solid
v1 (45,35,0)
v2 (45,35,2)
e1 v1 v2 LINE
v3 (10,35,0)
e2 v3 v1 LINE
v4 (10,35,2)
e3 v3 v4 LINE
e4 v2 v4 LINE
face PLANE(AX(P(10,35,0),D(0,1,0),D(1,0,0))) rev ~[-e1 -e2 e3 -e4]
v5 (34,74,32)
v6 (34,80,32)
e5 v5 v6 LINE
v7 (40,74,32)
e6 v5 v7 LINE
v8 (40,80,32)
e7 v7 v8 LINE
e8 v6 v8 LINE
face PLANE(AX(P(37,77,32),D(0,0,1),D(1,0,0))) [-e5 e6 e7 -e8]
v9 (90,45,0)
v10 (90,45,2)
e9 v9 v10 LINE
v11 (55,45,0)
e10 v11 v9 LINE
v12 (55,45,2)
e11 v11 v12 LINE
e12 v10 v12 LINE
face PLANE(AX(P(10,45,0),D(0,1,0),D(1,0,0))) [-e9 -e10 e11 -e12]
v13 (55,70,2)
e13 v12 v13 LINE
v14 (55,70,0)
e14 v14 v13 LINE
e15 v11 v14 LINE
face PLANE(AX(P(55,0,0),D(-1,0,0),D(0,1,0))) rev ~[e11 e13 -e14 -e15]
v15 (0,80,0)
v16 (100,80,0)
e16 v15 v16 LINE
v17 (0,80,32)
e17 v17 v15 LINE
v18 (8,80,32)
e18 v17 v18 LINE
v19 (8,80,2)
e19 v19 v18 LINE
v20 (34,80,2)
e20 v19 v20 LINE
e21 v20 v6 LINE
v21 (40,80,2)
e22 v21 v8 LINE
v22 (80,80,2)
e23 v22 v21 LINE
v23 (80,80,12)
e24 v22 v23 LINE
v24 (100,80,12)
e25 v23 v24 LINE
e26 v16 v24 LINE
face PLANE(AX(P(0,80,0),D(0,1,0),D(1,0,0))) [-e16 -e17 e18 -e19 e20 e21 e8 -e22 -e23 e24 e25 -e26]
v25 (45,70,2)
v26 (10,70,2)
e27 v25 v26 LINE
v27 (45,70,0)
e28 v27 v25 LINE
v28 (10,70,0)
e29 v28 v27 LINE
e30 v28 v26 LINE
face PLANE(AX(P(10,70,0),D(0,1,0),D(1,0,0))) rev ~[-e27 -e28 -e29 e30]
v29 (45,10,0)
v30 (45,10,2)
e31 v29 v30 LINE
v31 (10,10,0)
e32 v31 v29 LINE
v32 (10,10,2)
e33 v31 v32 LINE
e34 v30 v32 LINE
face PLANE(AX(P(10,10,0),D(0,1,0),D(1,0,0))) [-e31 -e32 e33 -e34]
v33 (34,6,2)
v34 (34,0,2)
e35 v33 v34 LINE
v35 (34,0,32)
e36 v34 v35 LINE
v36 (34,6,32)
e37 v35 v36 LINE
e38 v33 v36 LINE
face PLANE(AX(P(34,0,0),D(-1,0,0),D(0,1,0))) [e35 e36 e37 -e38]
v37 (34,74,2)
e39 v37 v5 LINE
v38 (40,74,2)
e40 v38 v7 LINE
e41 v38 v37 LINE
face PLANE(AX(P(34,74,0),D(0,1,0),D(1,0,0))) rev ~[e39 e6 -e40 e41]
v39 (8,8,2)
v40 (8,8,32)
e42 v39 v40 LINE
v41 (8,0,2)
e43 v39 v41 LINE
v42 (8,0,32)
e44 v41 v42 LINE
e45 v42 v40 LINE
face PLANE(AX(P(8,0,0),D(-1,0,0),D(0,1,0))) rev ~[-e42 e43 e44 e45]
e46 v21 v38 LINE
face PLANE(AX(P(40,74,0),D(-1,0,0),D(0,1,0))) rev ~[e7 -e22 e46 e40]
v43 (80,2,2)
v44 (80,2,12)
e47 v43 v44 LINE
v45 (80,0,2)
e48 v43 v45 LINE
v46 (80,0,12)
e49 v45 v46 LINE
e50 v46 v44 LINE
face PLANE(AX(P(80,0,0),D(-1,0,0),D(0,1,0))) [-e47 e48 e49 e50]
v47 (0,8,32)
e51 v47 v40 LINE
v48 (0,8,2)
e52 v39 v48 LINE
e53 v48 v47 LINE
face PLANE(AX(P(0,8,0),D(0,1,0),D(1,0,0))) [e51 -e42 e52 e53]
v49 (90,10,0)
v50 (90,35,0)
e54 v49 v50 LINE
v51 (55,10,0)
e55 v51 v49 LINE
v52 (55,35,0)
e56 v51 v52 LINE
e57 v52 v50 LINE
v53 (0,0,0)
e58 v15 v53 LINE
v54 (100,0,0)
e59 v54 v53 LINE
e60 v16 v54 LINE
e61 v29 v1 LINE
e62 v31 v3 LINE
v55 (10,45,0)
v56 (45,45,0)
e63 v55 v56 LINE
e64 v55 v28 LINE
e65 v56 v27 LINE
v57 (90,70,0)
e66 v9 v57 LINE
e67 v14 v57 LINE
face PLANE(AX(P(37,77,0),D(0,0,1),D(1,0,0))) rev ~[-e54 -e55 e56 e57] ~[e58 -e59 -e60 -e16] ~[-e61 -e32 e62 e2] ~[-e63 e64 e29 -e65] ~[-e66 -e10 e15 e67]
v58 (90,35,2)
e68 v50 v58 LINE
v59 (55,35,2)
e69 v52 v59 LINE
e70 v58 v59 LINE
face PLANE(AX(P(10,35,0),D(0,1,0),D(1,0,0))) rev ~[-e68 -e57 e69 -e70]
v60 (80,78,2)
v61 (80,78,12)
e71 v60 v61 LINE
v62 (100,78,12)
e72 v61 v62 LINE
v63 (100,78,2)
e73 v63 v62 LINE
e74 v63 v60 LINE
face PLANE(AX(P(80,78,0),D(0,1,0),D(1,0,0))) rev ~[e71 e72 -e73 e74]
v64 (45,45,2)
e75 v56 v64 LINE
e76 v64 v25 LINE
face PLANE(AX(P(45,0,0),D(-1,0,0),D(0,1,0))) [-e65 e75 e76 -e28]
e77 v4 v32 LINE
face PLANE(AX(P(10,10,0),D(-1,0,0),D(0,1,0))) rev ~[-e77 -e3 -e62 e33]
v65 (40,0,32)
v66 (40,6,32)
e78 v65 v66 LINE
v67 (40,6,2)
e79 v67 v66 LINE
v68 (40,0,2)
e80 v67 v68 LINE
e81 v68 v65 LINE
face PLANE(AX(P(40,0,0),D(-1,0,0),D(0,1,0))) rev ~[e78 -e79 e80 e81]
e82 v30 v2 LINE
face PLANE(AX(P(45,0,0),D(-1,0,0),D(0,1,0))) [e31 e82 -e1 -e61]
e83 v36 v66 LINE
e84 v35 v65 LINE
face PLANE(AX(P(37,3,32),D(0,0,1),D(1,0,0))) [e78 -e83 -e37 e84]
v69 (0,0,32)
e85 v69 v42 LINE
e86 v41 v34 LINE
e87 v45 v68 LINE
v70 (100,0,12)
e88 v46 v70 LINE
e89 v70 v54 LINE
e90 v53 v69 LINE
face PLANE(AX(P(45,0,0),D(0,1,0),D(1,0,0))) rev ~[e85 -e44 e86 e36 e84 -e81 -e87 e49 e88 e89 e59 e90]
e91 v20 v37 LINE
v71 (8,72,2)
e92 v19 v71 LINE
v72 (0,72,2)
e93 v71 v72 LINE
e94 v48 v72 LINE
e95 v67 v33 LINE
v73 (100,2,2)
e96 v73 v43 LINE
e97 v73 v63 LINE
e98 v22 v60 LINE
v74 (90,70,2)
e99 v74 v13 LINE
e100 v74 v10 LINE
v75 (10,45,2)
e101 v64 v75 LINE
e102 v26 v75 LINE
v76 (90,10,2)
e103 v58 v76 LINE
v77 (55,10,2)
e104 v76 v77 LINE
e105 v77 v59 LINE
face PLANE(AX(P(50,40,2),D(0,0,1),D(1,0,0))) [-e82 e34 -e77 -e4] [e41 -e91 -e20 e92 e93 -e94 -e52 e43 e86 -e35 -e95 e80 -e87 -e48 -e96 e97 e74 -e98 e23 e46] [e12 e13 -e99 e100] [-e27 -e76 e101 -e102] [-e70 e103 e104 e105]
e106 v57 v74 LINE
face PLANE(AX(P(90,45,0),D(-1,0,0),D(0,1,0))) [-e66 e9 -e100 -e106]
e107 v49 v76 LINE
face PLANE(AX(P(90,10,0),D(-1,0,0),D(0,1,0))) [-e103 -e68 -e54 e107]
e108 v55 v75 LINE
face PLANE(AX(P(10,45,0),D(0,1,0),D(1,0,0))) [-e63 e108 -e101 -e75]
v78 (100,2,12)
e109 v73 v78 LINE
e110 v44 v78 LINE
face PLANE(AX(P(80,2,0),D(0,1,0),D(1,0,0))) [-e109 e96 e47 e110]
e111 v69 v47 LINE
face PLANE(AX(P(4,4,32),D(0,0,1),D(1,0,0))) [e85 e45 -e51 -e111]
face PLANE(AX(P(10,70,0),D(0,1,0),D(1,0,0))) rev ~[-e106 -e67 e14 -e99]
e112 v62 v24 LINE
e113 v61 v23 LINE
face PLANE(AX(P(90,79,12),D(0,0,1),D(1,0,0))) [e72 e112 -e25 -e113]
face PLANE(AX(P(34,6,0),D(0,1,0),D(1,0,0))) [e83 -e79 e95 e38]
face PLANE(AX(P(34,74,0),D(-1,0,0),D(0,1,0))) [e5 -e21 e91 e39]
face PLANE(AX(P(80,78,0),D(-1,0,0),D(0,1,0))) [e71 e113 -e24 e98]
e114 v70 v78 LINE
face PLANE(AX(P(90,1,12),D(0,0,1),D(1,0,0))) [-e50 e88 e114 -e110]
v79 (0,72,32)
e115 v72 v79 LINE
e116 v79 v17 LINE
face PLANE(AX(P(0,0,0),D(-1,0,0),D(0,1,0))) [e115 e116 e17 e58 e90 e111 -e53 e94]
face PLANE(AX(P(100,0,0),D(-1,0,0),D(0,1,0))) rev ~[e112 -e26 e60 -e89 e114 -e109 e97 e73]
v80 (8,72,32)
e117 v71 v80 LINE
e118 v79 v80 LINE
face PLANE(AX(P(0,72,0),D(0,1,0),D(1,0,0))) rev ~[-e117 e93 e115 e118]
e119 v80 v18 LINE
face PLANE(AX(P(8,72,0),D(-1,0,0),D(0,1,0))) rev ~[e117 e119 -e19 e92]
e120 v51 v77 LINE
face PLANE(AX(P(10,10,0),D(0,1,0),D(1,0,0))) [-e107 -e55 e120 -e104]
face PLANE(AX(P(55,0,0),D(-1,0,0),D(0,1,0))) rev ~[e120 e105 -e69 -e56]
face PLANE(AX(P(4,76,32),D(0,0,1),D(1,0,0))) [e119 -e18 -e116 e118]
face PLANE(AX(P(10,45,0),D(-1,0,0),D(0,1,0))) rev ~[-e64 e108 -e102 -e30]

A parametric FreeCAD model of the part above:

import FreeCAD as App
import Part
import Sketcher

doc = App.newDocument("Part")
body = doc.addObject("PartDesign::Body", "Body")

sketch1 = doc.addObject("Sketcher::SketchObject", "Sketch")
body.addObject(sketch1)
sketch1.AttachmentSupport = (doc.XY_Plane, [""])
sketch1.MapMode = "FlatFace"
sketch1.addGeometry(Part.LineSegment(App.Vector(45, 80, 0), App.Vector(45, 0, 0)), False)
sketch1.addGeometry(Part.LineSegment(App.Vector(45, 0, 0), App.Vector(55, 0, 0)), False)
sketch1.addGeometry(Part.LineSegment(App.Vector(55, 0, 0), App.Vector(55, 80, 0)), False)
sketch1.addGeometry(Part.LineSegment(App.Vector(55, 80, 0), App.Vector(45, 80, 0)), False)
sketch1.addConstraint(Sketcher.Constraint("Coincident", 0, 2, 1, 1))
sketch1.addConstraint(Sketcher.Constraint("Coincident", 1, 2, 2, 1))
sketch1.addConstraint(Sketcher.Constraint("Coincident", 2, 2, 3, 1))
sketch1.addConstraint(Sketcher.Constraint("Coincident", 3, 2, 0, 1))
sketch1.addConstraint(Sketcher.Constraint("Vertical", 0))
sketch1.addConstraint(Sketcher.Constraint("Horizontal", 1))
sketch1.addConstraint(Sketcher.Constraint("Vertical", 2))
sketch1.addConstraint(Sketcher.Constraint("Horizontal", 3))
sketch1.addConstraint(Sketcher.Constraint("PointOnObject", 0, 2, -1))
sketch1.addConstraint(Sketcher.Constraint("DistanceX", 1, 1, 1, 2, 10.0))
sketch1.addConstraint(Sketcher.Constraint("DistanceY", 0, 2, 0, 1, 80.0))
sketch1.addConstraint(Sketcher.Constraint("DistanceX", -1, 1, 0, 2, 45.0))
pad1 = doc.addObject("PartDesign::Pad", "Pad")
body.addObject(pad1)
pad1.Profile = sketch1
pad1.Length = 2
body2 = doc.addObject("PartDesign::Body", "Body001")

sketch2 = doc.addObject("Sketcher::SketchObject", "Sketch001")
body2.addObject(sketch2)
sketch2.AttachmentSupport = (doc.getObject("XY_Plane001"), [""])
sketch2.MapMode = "FlatFace"
sketch2.addGeometry(Part.LineSegment(App.Vector(80, 80, 0), App.Vector(80, 78, 0)), False)
sketch2.addGeometry(Part.LineSegment(App.Vector(80, 78, 0), App.Vector(100, 78, 0)), False)
sketch2.addGeometry(Part.LineSegment(App.Vector(100, 78, 0), App.Vector(100, 80, 0)), False)
sketch2.addGeometry(Part.LineSegment(App.Vector(100, 80, 0), App.Vector(80, 80, 0)), False)
sketch2.addConstraint(Sketcher.Constraint("Coincident", 0, 2, 1, 1))
sketch2.addConstraint(Sketcher.Constraint("Coincident", 1, 2, 2, 1))
sketch2.addConstraint(Sketcher.Constraint("Coincident", 2, 2, 3, 1))
sketch2.addConstraint(Sketcher.Constraint("Coincident", 3, 2, 0, 1))
sketch2.addConstraint(Sketcher.Constraint("Vertical", 0))
sketch2.addConstraint(Sketcher.Constraint("Horizontal", 1))
sketch2.addConstraint(Sketcher.Constraint("Vertical", 2))
sketch2.addConstraint(Sketcher.Constraint("Horizontal", 3))
sketch2.addConstraint(Sketcher.Constraint("DistanceX", 1, 1, 1, 2, 20.0))
sketch2.addConstraint(Sketcher.Constraint("DistanceY", 0, 2, 0, 1, 2.0))
sketch2.addConstraint(Sketcher.Constraint("DistanceX", -1, 1, 0, 2, 80.0))
sketch2.addConstraint(Sketcher.Constraint("DistanceY", -1, 1, 0, 2, 78.0))
pad2 = doc.addObject("PartDesign::Pad", "Pad001")
body2.addObject(pad2)
pad2.Profile = sketch2
pad2.Length = 12
body3 = doc.addObject("PartDesign::Body", "Body002")

sketch3 = doc.addObject("Sketcher::SketchObject", "Sketch002")
body3.addObject(sketch3)
sketch3.AttachmentSupport = (doc.getObject("XY_Plane002"), [""])
sketch3.MapMode = "FlatFace"
sketch3.addGeometry(Part.LineSegment(App.Vector(80, 2, 0), App.Vector(80, 0, 0)), False)
sketch3.addGeometry(Part.LineSegment(App.Vector(80, 0, 0), App.Vector(100, 0, 0)), False)
sketch3.addGeometry(Part.LineSegment(App.Vector(100, 0, 0), App.Vector(100, 2, 0)), False)
sketch3.addGeometry(Part.LineSegment(App.Vector(100, 2, 0), App.Vector(80, 2, 0)), False)
sketch3.addConstraint(Sketcher.Constraint("Coincident", 0, 2, 1, 1))
sketch3.addConstraint(Sketcher.Constraint("Coincident", 1, 2, 2, 1))
sketch3.addConstraint(Sketcher.Constraint("Coincident", 2, 2, 3, 1))
sketch3.addConstraint(Sketcher.Constraint("Coincident", 3, 2, 0, 1))
sketch3.addConstraint(Sketcher.Constraint("Vertical", 0))
sketch3.addConstraint(Sketcher.Constraint("Horizontal", 1))
sketch3.addConstraint(Sketcher.Constraint("Vertical", 2))
sketch3.addConstraint(Sketcher.Constraint("Horizontal", 3))
sketch3.addConstraint(Sketcher.Constraint("PointOnObject", 0, 2, -1))
sketch3.addConstraint(Sketcher.Constraint("DistanceX", 1, 1, 1, 2, 20.0))
sketch3.addConstraint(Sketcher.Constraint("DistanceY", 0, 2, 0, 1, 2.0))
sketch3.addConstraint(Sketcher.Constraint("DistanceX", -1, 1, 0, 2, 80.0))
pad3 = doc.addObject("PartDesign::Pad", "Pad002")
body3.addObject(pad3)
pad3.Profile = sketch3
pad3.Length = 12
body4 = doc.addObject("PartDesign::Body", "Body003")

sketch4 = doc.addObject("Sketcher::SketchObject", "Sketch003")
body4.addObject(sketch4)
sketch4.AttachmentSupport = (doc.getObject("XY_Plane003"), [""])
sketch4.MapMode = "FlatFace"
sketch4.addGeometry(Part.LineSegment(App.Vector(10, 70, 0), App.Vector(10, 45, 0)), False)
sketch4.addGeometry(Part.LineSegment(App.Vector(10, 45, 0), App.Vector(90, 45, 0)), False)
sketch4.addGeometry(Part.LineSegment(App.Vector(90, 45, 0), App.Vector(90, 70, 0)), False)
sketch4.addGeometry(Part.LineSegment(App.Vector(90, 70, 0), App.Vector(10, 70, 0)), False)
sketch4.addConstraint(Sketcher.Constraint("Coincident", 0, 2, 1, 1))
sketch4.addConstraint(Sketcher.Constraint("Coincident", 1, 2, 2, 1))
sketch4.addConstraint(Sketcher.Constraint("Coincident", 2, 2, 3, 1))
sketch4.addConstraint(Sketcher.Constraint("Coincident", 3, 2, 0, 1))
sketch4.addConstraint(Sketcher.Constraint("Vertical", 0))
sketch4.addConstraint(Sketcher.Constraint("Horizontal", 1))
sketch4.addConstraint(Sketcher.Constraint("Vertical", 2))
sketch4.addConstraint(Sketcher.Constraint("Horizontal", 3))
sketch4.addConstraint(Sketcher.Constraint("DistanceX", 1, 1, 1, 2, 80.0))
sketch4.addConstraint(Sketcher.Constraint("DistanceY", 0, 2, 0, 1, 25.0))
sketch4.addConstraint(Sketcher.Constraint("DistanceX", -1, 1, 0, 2, 10.0))
sketch4.addConstraint(Sketcher.Constraint("DistanceY", -1, 1, 0, 2, 45.0))
pad4 = doc.addObject("PartDesign::Pad", "Pad003")
body4.addObject(pad4)
pad4.Profile = sketch4
pad4.Length = 10
body5 = doc.addObject("PartDesign::Body", "Body004")

sketch5 = doc.addObject("Sketcher::SketchObject", "Sketch004")
body5.addObject(sketch5)
sketch5.AttachmentSupport = (doc.getObject("XY_Plane004"), [""])
sketch5.MapMode = "FlatFace"
sketch5.addGeometry(Part.LineSegment(App.Vector(10, 35, 0), App.Vector(10, 10, 0)), False)
sketch5.addGeometry(Part.LineSegment(App.Vector(10, 10, 0), App.Vector(90, 10, 0)), False)
sketch5.addGeometry(Part.LineSegment(App.Vector(90, 10, 0), App.Vector(90, 35, 0)), False)
sketch5.addGeometry(Part.LineSegment(App.Vector(90, 35, 0), App.Vector(10, 35, 0)), False)
sketch5.addConstraint(Sketcher.Constraint("Coincident", 0, 2, 1, 1))
sketch5.addConstraint(Sketcher.Constraint("Coincident", 1, 2, 2, 1))
sketch5.addConstraint(Sketcher.Constraint("Coincident", 2, 2, 3, 1))
sketch5.addConstraint(Sketcher.Constraint("Coincident", 3, 2, 0, 1))
sketch5.addConstraint(Sketcher.Constraint("Vertical", 0))
sketch5.addConstraint(Sketcher.Constraint("Horizontal", 1))
sketch5.addConstraint(Sketcher.Constraint("Vertical", 2))
sketch5.addConstraint(Sketcher.Constraint("Horizontal", 3))
sketch5.addConstraint(Sketcher.Constraint("DistanceX", 1, 1, 1, 2, 80.0))
sketch5.addConstraint(Sketcher.Constraint("DistanceY", 0, 2, 0, 1, 25.0))
sketch5.addConstraint(Sketcher.Constraint("DistanceX", -1, 1, 0, 2, 10.0))
sketch5.addConstraint(Sketcher.Constraint("DistanceY", -1, 1, 0, 2, 10.0))
pad5 = doc.addObject("PartDesign::Pad", "Pad004")
body5.addObject(pad5)
pad5.Profile = sketch5
pad5.Length = 10
body6 = doc.addObject("PartDesign::Body", "Body005")

sketch6 = doc.addObject("Sketcher::SketchObject", "Sketch005")
body6.addObject(sketch6)
sketch6.AttachmentSupport = (doc.getObject("XY_Plane005"), [""])
sketch6.MapMode = "FlatFace"
sketch6.addGeometry(Part.LineSegment(App.Vector(34, 80, 0), App.Vector(34, 74, 0)), False)
sketch6.addGeometry(Part.LineSegment(App.Vector(34, 74, 0), App.Vector(40, 74, 0)), False)
sketch6.addGeometry(Part.LineSegment(App.Vector(40, 74, 0), App.Vector(40, 80, 0)), False)
sketch6.addGeometry(Part.LineSegment(App.Vector(40, 80, 0), App.Vector(34, 80, 0)), False)
sketch6.addConstraint(Sketcher.Constraint("Coincident", 0, 2, 1, 1))
sketch6.addConstraint(Sketcher.Constraint("Coincident", 1, 2, 2, 1))
sketch6.addConstraint(Sketcher.Constraint("Coincident", 2, 2, 3, 1))
sketch6.addConstraint(Sketcher.Constraint("Coincident", 3, 2, 0, 1))
sketch6.addConstraint(Sketcher.Constraint("Vertical", 0))
sketch6.addConstraint(Sketcher.Constraint("Horizontal", 1))
sketch6.addConstraint(Sketcher.Constraint("Vertical", 2))
sketch6.addConstraint(Sketcher.Constraint("Horizontal", 3))
sketch6.addConstraint(Sketcher.Constraint("Equal", 3, 0))
sketch6.addConstraint(Sketcher.Constraint("DistanceX", 1, 1, 1, 2, 6.0))
sketch6.addConstraint(Sketcher.Constraint("DistanceX", -1, 1, 0, 2, 34.0))
sketch6.addConstraint(Sketcher.Constraint("DistanceY", -1, 1, 0, 2, 74.0))
pad6 = doc.addObject("PartDesign::Pad", "Pad005")
body6.addObject(pad6)
pad6.Profile = sketch6
pad6.Length = 32
body7 = doc.addObject("PartDesign::Body", "Body006")

sketch7 = doc.addObject("Sketcher::SketchObject", "Sketch006")
body7.addObject(sketch7)
sketch7.AttachmentSupport = (doc.getObject("XY_Plane006"), [""])
sketch7.MapMode = "FlatFace"
sketch7.addGeometry(Part.LineSegment(App.Vector(34, 6, 0), App.Vector(34, 0, 0)), False)
sketch7.addGeometry(Part.LineSegment(App.Vector(34, 0, 0), App.Vector(40, 0, 0)), False)
sketch7.addGeometry(Part.LineSegment(App.Vector(40, 0, 0), App.Vector(40, 6, 0)), False)
sketch7.addGeometry(Part.LineSegment(App.Vector(40, 6, 0), App.Vector(34, 6, 0)), False)
sketch7.addConstraint(Sketcher.Constraint("Coincident", 0, 2, 1, 1))
sketch7.addConstraint(Sketcher.Constraint("Coincident", 1, 2, 2, 1))
sketch7.addConstraint(Sketcher.Constraint("Coincident", 2, 2, 3, 1))
sketch7.addConstraint(Sketcher.Constraint("Coincident", 3, 2, 0, 1))
sketch7.addConstraint(Sketcher.Constraint("Vertical", 0))
sketch7.addConstraint(Sketcher.Constraint("Horizontal", 1))
sketch7.addConstraint(Sketcher.Constraint("Vertical", 2))
sketch7.addConstraint(Sketcher.Constraint("Horizontal", 3))
sketch7.addConstraint(Sketcher.Constraint("PointOnObject", 0, 2, -1))
sketch7.addConstraint(Sketcher.Constraint("Equal", 3, 0))
sketch7.addConstraint(Sketcher.Constraint("DistanceX", 1, 1, 1, 2, 6.0))
sketch7.addConstraint(Sketcher.Constraint("DistanceX", -1, 1, 0, 2, 34.0))
pad7 = doc.addObject("PartDesign::Pad", "Pad006")
body7.addObject(pad7)
pad7.Profile = sketch7
pad7.Length = 32
body8 = doc.addObject("PartDesign::Body", "Body007")

sketch8 = doc.addObject("Sketcher::SketchObject", "Sketch007")
body8.addObject(sketch8)
sketch8.AttachmentSupport = (doc.getObject("XY_Plane007"), [""])
sketch8.MapMode = "FlatFace"
sketch8.addGeometry(Part.LineSegment(App.Vector(0, 80, 0), App.Vector(0, 72, 0)), False)
sketch8.addGeometry(Part.LineSegment(App.Vector(0, 72, 0), App.Vector(8, 72, 0)), False)
sketch8.addGeometry(Part.LineSegment(App.Vector(8, 72, 0), App.Vector(8, 80, 0)), False)
sketch8.addGeometry(Part.LineSegment(App.Vector(8, 80, 0), App.Vector(0, 80, 0)), False)
sketch8.addConstraint(Sketcher.Constraint("Coincident", 0, 2, 1, 1))
sketch8.addConstraint(Sketcher.Constraint("Coincident", 1, 2, 2, 1))
sketch8.addConstraint(Sketcher.Constraint("Coincident", 2, 2, 3, 1))
sketch8.addConstraint(Sketcher.Constraint("Coincident", 3, 2, 0, 1))
sketch8.addConstraint(Sketcher.Constraint("Vertical", 0))
sketch8.addConstraint(Sketcher.Constraint("Horizontal", 1))
sketch8.addConstraint(Sketcher.Constraint("Vertical", 2))
sketch8.addConstraint(Sketcher.Constraint("Horizontal", 3))
sketch8.addConstraint(Sketcher.Constraint("PointOnObject", 0, 2, -2))
sketch8.addConstraint(Sketcher.Constraint("Equal", 3, 0))
sketch8.addConstraint(Sketcher.Constraint("DistanceX", 1, 1, 1, 2, 8.0))
sketch8.addConstraint(Sketcher.Constraint("DistanceY", -1, 1, 0, 2, 72.0))
pad8 = doc.addObject("PartDesign::Pad", "Pad007")
body8.addObject(pad8)
pad8.Profile = sketch8
pad8.Length = 32
body9 = doc.addObject("PartDesign::Body", "Body008")

sketch9 = doc.addObject("Sketcher::SketchObject", "Sketch008")
body9.addObject(sketch9)
sketch9.AttachmentSupport = (doc.getObject("XY_Plane008"), [""])
sketch9.MapMode = "FlatFace"
sketch9.addGeometry(Part.LineSegment(App.Vector(0, 8, 0), App.Vector(0, 0, 0)), False)
sketch9.addGeometry(Part.LineSegment(App.Vector(0, 0, 0), App.Vector(8, 0, 0)), False)
sketch9.addGeometry(Part.LineSegment(App.Vector(8, 0, 0), App.Vector(8, 8, 0)), False)
sketch9.addGeometry(Part.LineSegment(App.Vector(8, 8, 0), App.Vector(0, 8, 0)), False)
sketch9.addConstraint(Sketcher.Constraint("Coincident", 0, 2, 1, 1))
sketch9.addConstraint(Sketcher.Constraint("Coincident", 1, 2, 2, 1))
sketch9.addConstraint(Sketcher.Constraint("Coincident", 2, 2, 3, 1))
sketch9.addConstraint(Sketcher.Constraint("Coincident", 3, 2, 0, 1))
sketch9.addConstraint(Sketcher.Constraint("Vertical", 0))
sketch9.addConstraint(Sketcher.Constraint("Horizontal", 1))
sketch9.addConstraint(Sketcher.Constraint("Vertical", 2))
sketch9.addConstraint(Sketcher.Constraint("Horizontal", 3))
sketch9.addConstraint(Sketcher.Constraint("Coincident", 0, 2, -1, 1))
sketch9.addConstraint(Sketcher.Constraint("Equal", 3, 0))
sketch9.addConstraint(Sketcher.Constraint("DistanceX", 1, 1, 1, 2, 8.0))
pad9 = doc.addObject("PartDesign::Pad", "Pad008")
body9.addObject(pad9)
pad9.Profile = sketch9
pad9.Length = 32
body10 = doc.addObject("PartDesign::Body", "Body009")

sketch10 = doc.addObject("Sketcher::SketchObject", "Sketch009")
body10.addObject(sketch10)
sketch10.AttachmentSupport = (doc.getObject("XY_Plane009"), [""])
sketch10.MapMode = "FlatFace"
sketch10.addGeometry(Part.LineSegment(App.Vector(0, 80, 0), App.Vector(0, 0, 0)), False)
sketch10.addGeometry(Part.LineSegment(App.Vector(0, 0, 0), App.Vector(100, 0, 0)), False)
sketch10.addGeometry(Part.LineSegment(App.Vector(100, 0, 0), App.Vector(100, 80, 0)), False)
sketch10.addGeometry(Part.LineSegment(App.Vector(100, 80, 0), App.Vector(0, 80, 0)), False)
sketch10.addConstraint(Sketcher.Constraint("Coincident", 0, 2, 1, 1))
sketch10.addConstraint(Sketcher.Constraint("Coincident", 1, 2, 2, 1))
sketch10.addConstraint(Sketcher.Constraint("Coincident", 2, 2, 3, 1))
sketch10.addConstraint(Sketcher.Constraint("Coincident", 3, 2, 0, 1))
sketch10.addConstraint(Sketcher.Constraint("Vertical", 0))
sketch10.addConstraint(Sketcher.Constraint("Horizontal", 1))
sketch10.addConstraint(Sketcher.Constraint("Vertical", 2))
sketch10.addConstraint(Sketcher.Constraint("Horizontal", 3))
sketch10.addConstraint(Sketcher.Constraint("Coincident", 0, 2, -1, 1))
sketch10.addConstraint(Sketcher.Constraint("DistanceX", 1, 1, 1, 2, 100.0))
sketch10.addConstraint(Sketcher.Constraint("DistanceY", 0, 2, 0, 1, 80.0))
pad10 = doc.addObject("PartDesign::Pad", "Pad009")
body10.addObject(pad10)
pad10.Profile = sketch10
pad10.Length = 2
doc.recompute()

boolean = doc.addObject("PartDesign::Boolean", "Boolean")
body10.addObject(boolean)
boolean.Type = "Fuse"
boolean.addObjects([body9])
doc.recompute()

boolean2 = doc.addObject("PartDesign::Boolean", "Boolean001")
body10.addObject(boolean2)
boolean2.Type = "Fuse"
boolean2.addObjects([body8])
doc.recompute()

boolean3 = doc.addObject("PartDesign::Boolean", "Boolean002")
body10.addObject(boolean3)
boolean3.Type = "Fuse"
boolean3.addObjects([body7])
doc.recompute()

boolean4 = doc.addObject("PartDesign::Boolean", "Boolean003")
body10.addObject(boolean4)
boolean4.Type = "Fuse"
boolean4.addObjects([body6])
doc.recompute()

boolean5 = doc.addObject("PartDesign::Boolean", "Boolean004")
body10.addObject(boolean5)
boolean5.Type = "Cut"
boolean5.addObjects([body5])
doc.recompute()

boolean6 = doc.addObject("PartDesign::Boolean", "Boolean005")
body10.addObject(boolean6)
boolean6.Type = "Cut"
boolean6.addObjects([body4])
doc.recompute()

boolean7 = doc.addObject("PartDesign::Boolean", "Boolean006")
body10.addObject(boolean7)
boolean7.Type = "Fuse"
boolean7.addObjects([body3])
doc.recompute()

boolean8 = doc.addObject("PartDesign::Boolean", "Boolean007")
body10.addObject(boolean8)
boolean8.Type = "Fuse"
boolean8.addObjects([body2])
doc.recompute()

boolean9 = doc.addObject("PartDesign::Boolean", "Boolean008")
body10.addObject(boolean9)
boolean9.Type = "Fuse"
boolean9.addObjects([body])

doc.recompute()
